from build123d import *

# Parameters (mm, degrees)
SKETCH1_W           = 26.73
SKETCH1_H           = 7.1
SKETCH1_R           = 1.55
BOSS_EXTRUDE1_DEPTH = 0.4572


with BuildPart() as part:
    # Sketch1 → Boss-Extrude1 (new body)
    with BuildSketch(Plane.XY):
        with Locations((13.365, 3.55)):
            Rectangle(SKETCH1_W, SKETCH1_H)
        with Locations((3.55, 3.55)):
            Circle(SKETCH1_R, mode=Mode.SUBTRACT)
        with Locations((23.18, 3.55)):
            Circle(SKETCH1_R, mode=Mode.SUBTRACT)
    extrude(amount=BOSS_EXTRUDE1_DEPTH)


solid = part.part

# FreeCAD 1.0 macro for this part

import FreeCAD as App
import Part
import Sketcher

V = App.Vector
Q = App.Units.Quantity


def add_polygon(sketch, points):
    """Adds a closed chain of lines whose ends are joined by coincident constraints."""
    first, n = sketch.GeometryCount, len(points)
    for a, b in zip(points, points[1:] + points[:1]):
        sketch.addGeometry(Part.LineSegment(App.Vector(*a, 0), App.Vector(*b, 0)), False)
    for i in range(n):
        sketch.addConstraint(Sketcher.Constraint("Coincident", first + i, 2, first + (i + 1) % n, 1))

doc = App.newDocument("Part")
body = doc.addObject("PartDesign::Body", "Body")

sketch1 = body.newObject("Sketcher::SketchObject", "Sketch")
sketch1.AttachmentSupport = (doc.getObject("XY_Plane"), [""])
sketch1.MapMode = "FlatFace"
add_polygon(sketch1, [(0, 7.1), (0, 0), (26.7, 0), (26.7, 7.1)])
sketch1.addGeometry(Part.Circle(V(3.5, 3.5, 0), V(0, 0, 1), 1.6), False)
sketch1.addGeometry(Part.Circle(V(23.2, 3.5, 0), V(0, 0, 1), 1.6), False)
sketch1.addConstraint([
    Sketcher.Constraint("Vertical", 0),
    Sketcher.Constraint("Horizontal", 1),
    Sketcher.Constraint("Vertical", 2),
    Sketcher.Constraint("Horizontal", 3),
    Sketcher.Constraint("Coincident", 0, 2, -1, 1),
    Sketcher.Constraint("Equal", 4, 5),
    Sketcher.Constraint("Horizontal", 4, 3, 5, 3),
    Sketcher.Constraint("Diameter", 4, Q("3.1 mm")),
    Sketcher.Constraint("DistanceY", 0, 2, 0, 1, Q("7.1 mm")),
    Sketcher.Constraint("DistanceX", 1, 1, 1, 2, Q("26.73 mm")),
    Sketcher.Constraint("DistanceX", -1, 1, 4, 3, Q("3.55 mm")),
    Sketcher.Constraint("DistanceY", -1, 1, 4, 3, Q("3.55 mm")),
    Sketcher.Constraint("DistanceX", -1, 1, 5, 3, Q("23.18 mm")),
])
pad1 = body.newObject("PartDesign::Pad", "Pad")
pad1.Profile = sketch1
pad1.Length = 0.4572

doc.recompute()
